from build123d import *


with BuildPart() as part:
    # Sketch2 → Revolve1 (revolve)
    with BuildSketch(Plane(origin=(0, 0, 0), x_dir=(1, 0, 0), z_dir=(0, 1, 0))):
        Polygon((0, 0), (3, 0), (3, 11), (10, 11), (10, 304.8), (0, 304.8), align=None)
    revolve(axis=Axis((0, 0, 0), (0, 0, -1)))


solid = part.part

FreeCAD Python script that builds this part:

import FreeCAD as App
import Part
import Sketcher

V = App.Vector

doc = App.newDocument("Part")
params = doc.addObject("Spreadsheet::Sheet", "Params")
for row, (alias, value) in enumerate([
    ("sketch1_width", "3 mm"),
    ("sketch1_width2", "7 mm"),
    ("sketch1_height", "11 mm"),
    ("sketch1_height2", "293.8 mm"),
    ("revolution_angle", "360 deg"),
], start=1):
    params.set(f"A{row}", alias)
    params.set(f"B{row}", "=" + value)
    params.setAlias(f"B{row}", alias)

body = doc.addObject("PartDesign::Body", "Body")

# Sketch on XZ plane
sketch1 = body.newObject("Sketcher::SketchObject", "Sketch")
sketch1.AttachmentSupport = (doc.getObject("XZ_Plane"), [""])
sketch1.MapMode = "FlatFace"
sketch1.addGeometry([
    Part.LineSegment(V(0, 0, 0), V(3, 0, 0)),  # 0
    Part.LineSegment(V(3, 0, 0), V(3, -11, 0)),  # 1
    Part.LineSegment(V(3, -11, 0), V(10, -11, 0)),  # 2
    Part.LineSegment(V(10, -11, 0), V(10, -304.8, 0)),  # 3
    Part.LineSegment(V(10, -304.8, 0), V(0, -304.8, 0)),  # 4
    Part.LineSegment(V(0, -304.8, 0), V(0, 0, 0)),  # 5
], False)
sketch1.addConstraint([
    Sketcher.Constraint("Coincident", 0, 2, 1, 1),
    Sketcher.Constraint("Coincident", 1, 2, 2, 1),
    Sketcher.Constraint("Coincident", 2, 2, 3, 1),
    Sketcher.Constraint("Coincident", 3, 2, 4, 1),
    Sketcher.Constraint("Coincident", 4, 2, 5, 1),
    Sketcher.Constraint("Coincident", 5, 2, 0, 1),
    Sketcher.Constraint("Horizontal", 0),
    Sketcher.Constraint("Vertical", 1),
    Sketcher.Constraint("Horizontal", 2),
    Sketcher.Constraint("Vertical", 3),
    Sketcher.Constraint("Horizontal", 4),
    Sketcher.Constraint("Vertical", 5),
    Sketcher.Constraint("Coincident", 5, 2, -1, 1),
    Sketcher.Constraint("DistanceX", 0, 1, 0, 2, 3.0),
    Sketcher.Constraint("DistanceX", 2, 1, 2, 2, 7.0),
    Sketcher.Constraint("DistanceY", 1, 2, 1, 1, 11.0),
    Sketcher.Constraint("DistanceY", 3, 2, 3, 1, 293.8),
])
sketch1.setExpression("Constraints[13]", "Params.sketch1_width")
sketch1.setExpression("Constraints[14]", "Params.sketch1_width2")
sketch1.setExpression("Constraints[15]", "Params.sketch1_height")
sketch1.setExpression("Constraints[16]", "Params.sketch1_height2")
revolution = body.newObject("PartDesign::Revolution", "Revolution")
revolution.Profile = sketch1
revolution.ReferenceAxis = (sketch1, ["V_Axis"])
revolution.setExpression("Angle", "Params.revolution_angle")

doc.recompute()
